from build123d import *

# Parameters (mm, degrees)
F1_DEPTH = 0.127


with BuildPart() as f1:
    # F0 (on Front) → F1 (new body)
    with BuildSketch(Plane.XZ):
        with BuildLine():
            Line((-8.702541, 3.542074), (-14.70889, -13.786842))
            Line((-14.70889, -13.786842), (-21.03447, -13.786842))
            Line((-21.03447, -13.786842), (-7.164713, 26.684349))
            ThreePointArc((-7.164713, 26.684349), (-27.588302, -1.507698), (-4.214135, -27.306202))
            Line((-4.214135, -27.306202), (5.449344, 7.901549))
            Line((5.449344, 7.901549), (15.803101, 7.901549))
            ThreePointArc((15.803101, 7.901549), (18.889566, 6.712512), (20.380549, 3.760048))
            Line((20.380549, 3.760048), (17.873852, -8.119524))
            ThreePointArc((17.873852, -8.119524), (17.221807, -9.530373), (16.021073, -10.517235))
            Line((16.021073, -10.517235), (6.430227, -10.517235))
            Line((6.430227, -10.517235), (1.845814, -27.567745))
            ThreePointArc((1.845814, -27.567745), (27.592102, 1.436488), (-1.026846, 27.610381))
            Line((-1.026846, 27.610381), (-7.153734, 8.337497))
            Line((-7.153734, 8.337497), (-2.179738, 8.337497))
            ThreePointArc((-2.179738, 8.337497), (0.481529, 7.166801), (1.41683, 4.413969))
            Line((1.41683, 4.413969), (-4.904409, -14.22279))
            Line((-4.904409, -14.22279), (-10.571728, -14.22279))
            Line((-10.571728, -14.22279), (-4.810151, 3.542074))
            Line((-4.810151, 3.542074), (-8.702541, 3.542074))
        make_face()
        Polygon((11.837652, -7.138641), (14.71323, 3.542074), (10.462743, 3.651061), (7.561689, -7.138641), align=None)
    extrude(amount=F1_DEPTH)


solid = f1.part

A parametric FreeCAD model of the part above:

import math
import FreeCAD as App
import Part
import Sketcher

V = App.Vector
Q = App.Units.Quantity


def add_polygon(sketch, points):
    """Adds a closed chain of lines whose ends are joined by coincident constraints."""
    first, n = sketch.GeometryCount, len(points)
    for a, b in zip(points, points[1:] + points[:1]):
        sketch.addGeometry(Part.LineSegment(App.Vector(*a, 0), App.Vector(*b, 0)), False)
    for i in range(n):
        sketch.addConstraint(Sketcher.Constraint("Coincident", first + i, 2, first + (i + 1) % n, 1))

doc = App.newDocument("Part")
body = doc.addObject("PartDesign::Body", "Body")
body.AllowCompound = True

# Sketch on XZ plane
sketch1 = body.newObject("Sketcher::SketchObject", "Sketch")
sketch1.AttachmentSupport = (doc.getObject("XZ_Plane"), [""])
sketch1.MapMode = "FlatFace"
sketch1.addGeometry(Part.LineSegment(V(-8.702541, 3.542074, 0), V(-14.70889, -13.786842, 0)), False)  # 0
sketch1.addGeometry(Part.LineSegment(V(-14.70889, -13.786842, 0), V(-21.03447, -13.786842, 0)), False)  # 1
sketch1.addGeometry(Part.LineSegment(V(-21.03447, -13.786842, 0), V(-7.164713, 26.684349, 0)), False)  # 2
sketch1.addGeometry(Part.ArcOfCircle(Part.Circle(V(0.000001, 0, 0), V(0, 0, 1), 27.62947), math.radians(105.029373), math.radians(261.22682)), False)  # 3
sketch1.addGeometry(Part.LineSegment(V(-4.214135, -27.306202, 0), V(5.449344, 7.901549, 0)), False)  # 4
sketch1.addGeometry(Part.LineSegment(V(5.449344, 7.901549, 0), V(15.803101, 7.901549, 0)), False)  # 5
sketch1.addGeometry(Part.ArcOfCircle(Part.Circle(V(15.803101, 3.301157, 0), V(0, 0, 1), 4.600392), math.radians(5.7248), math.radians(90.000004)), False)  # 6
sketch1.addGeometry(Part.LineSegment(V(20.380549, 3.760048, 0), V(17.873852, -8.119524, 0)), False)  # 7
sketch1.addGeometry(Part.ArcOfCircle(Part.Circle(V(14.4652, -7.400265, 0), V(0, 0, 1), 3.483711), math.radians(-63.473369), math.radians(-11.915181)), False)  # 8
sketch1.addGeometry(Part.LineSegment(V(16.021073, -10.517235, 0), V(6.430227, -10.517235, 0)), False)  # 9
sketch1.addGeometry(Part.LineSegment(V(6.430227, -10.517235, 0), V(1.845814, -27.567745, 0)), False)  # 10
sketch1.addGeometry(Part.ArcOfCircle(Part.Circle(V(0, 0, 0), V(0, 0, 1), 27.629469), math.radians(-86.169447), math.radians(92.129882)), False)  # 11
sketch1.addGeometry(Part.LineSegment(V(-1.026846, 27.610381, 0), V(-7.153734, 8.337497, 0)), False)  # 12
sketch1.addGeometry(Part.LineSegment(V(-7.153734, 8.337497, 0), V(-2.179738, 8.337497, 0)), False)  # 13
sketch1.addGeometry(Part.ArcOfCircle(Part.Circle(V(-2.179739, 4.727305, 0), V(0, 0, 1), 3.610192), math.radians(-4.979086), math.radians(89.999991)), False)  # 14
sketch1.addGeometry(Part.LineSegment(V(1.41683, 4.413969, 0), V(-4.904409, -14.22279, 0)), False)  # 15
sketch1.addGeometry(Part.LineSegment(V(-4.904409, -14.22279, 0), V(-10.571728, -14.22279, 0)), False)  # 16
sketch1.addGeometry(Part.LineSegment(V(-10.571728, -14.22279, 0), V(-4.810151, 3.542074, 0)), False)  # 17
sketch1.addGeometry(Part.LineSegment(V(-4.810151, 3.542074, 0), V(-8.702541, 3.542074, 0)), False)  # 18
add_polygon(sketch1, [(11.837652, -7.138641), (14.71323, 3.542074), (10.462743, 3.651061), (7.561689, -7.138641)])  # lines 19-22
sketch1.addConstraint(Sketcher.Constraint("Coincident", 0, 2, 1, 1))
sketch1.addConstraint(Sketcher.Constraint("Coincident", 1, 2, 2, 1))
sketch1.addConstraint(Sketcher.Constraint("Coincident", 2, 2, 3, 1))
sketch1.addConstraint(Sketcher.Constraint("Coincident", 3, 2, 4, 1))
sketch1.addConstraint(Sketcher.Constraint("Coincident", 4, 2, 5, 1))
sketch1.addConstraint(Sketcher.Constraint("Coincident", 5, 2, 6, 2))
sketch1.addConstraint(Sketcher.Constraint("Coincident", 6, 1, 7, 1))
sketch1.addConstraint(Sketcher.Constraint("Coincident", 7, 2, 8, 2))
sketch1.addConstraint(Sketcher.Constraint("Coincident", 8, 1, 9, 1))
sketch1.addConstraint(Sketcher.Constraint("Coincident", 9, 2, 10, 1))
sketch1.addConstraint(Sketcher.Constraint("Coincident", 10, 2, 11, 1))
sketch1.addConstraint(Sketcher.Constraint("Coincident", 11, 2, 12, 1))
sketch1.addConstraint(Sketcher.Constraint("Coincident", 12, 2, 13, 1))
sketch1.addConstraint(Sketcher.Constraint("Coincident", 13, 2, 14, 2))
sketch1.addConstraint(Sketcher.Constraint("Coincident", 14, 1, 15, 1))
sketch1.addConstraint(Sketcher.Constraint("Coincident", 15, 2, 16, 1))
sketch1.addConstraint(Sketcher.Constraint("Coincident", 16, 2, 17, 1))
sketch1.addConstraint(Sketcher.Constraint("Coincident", 17, 2, 18, 1))
sketch1.addConstraint(Sketcher.Constraint("Coincident", 18, 2, 0, 1))
sketch1.addConstraint(Sketcher.Constraint("Horizontal", 1))
sketch1.addConstraint(Sketcher.Constraint("Horizontal", 5))
sketch1.addConstraint(Sketcher.Constraint("Horizontal", 9))
sketch1.addConstraint(Sketcher.Constraint("Horizontal", 13))
sketch1.addConstraint(Sketcher.Constraint("Horizontal", 16))
sketch1.addConstraint(Sketcher.Constraint("Horizontal", 18))
sketch1.addConstraint(Sketcher.Constraint("Horizontal", 22))
sketch1.addConstraint(Sketcher.Constraint("Coincident", 3, 3, -1, 1))
sketch1.addConstraint(Sketcher.Constraint("Coincident", 11, 3, -1, 1))
sketch1.addConstraint(Sketcher.Constraint("Radius", 3, Q("27.62947 mm")))
sketch1.addConstraint(Sketcher.Constraint("Radius", 8, Q("3.483711 mm")))
sketch1.addConstraint(Sketcher.Constraint("Radius", 11, Q("27.629469 mm")))
sketch1.addConstraint(Sketcher.Constraint("Radius", 14, Q("3.610192 mm")))
sketch1.addConstraint(Sketcher.Constraint("Radius", 6, Q("4.600392 mm")))
sketch1.addConstraint(Sketcher.Constraint("DistanceY", 8, 3, 21, 2, Q("0.0103002 in")))
sketch1.addConstraint(Sketcher.Constraint("DistanceX", 1, 2, 1, 1, Q("6.32558 mm")))
sketch1.addConstraint(Sketcher.Constraint("DistanceX", 16, 2, 16, 1, Q("5.667319 mm")))
sketch1.addConstraint(Sketcher.Constraint("DistanceX", 18, 2, 18, 1, Q("3.89239 mm")))
sketch1.addConstraint(Sketcher.Constraint("DistanceX", -1, 1, 6, 3, Q("15.803101 mm")))
sketch1.addConstraint(Sketcher.Constraint("DistanceX", -1, 1, 8, 3, Q("14.4652 mm")))
sketch1.addConstraint(Sketcher.Constraint("DistanceY", 3, 2, -1, 1, Q("27.306202 mm")))
sketch1.addConstraint(Sketcher.Constraint("DistanceX", -1, 1, 5, 2, Q("15.803101 mm")))
sketch1.addConstraint(Sketcher.Constraint("DistanceY", 0, 2, 6, 3, Q("17.087999 mm")))
sketch1.addConstraint(Sketcher.Constraint("DistanceY", 6, 1, 5, 2, Q("4.141501 mm")))
sketch1.addConstraint(Sketcher.Constraint("DistanceX", 4, 2, 20, 2, Q("5.013399 mm")))
sketch1.addConstraint(Sketcher.Constraint("DistanceX", 22, 2, 7, 2, Q("6.0362 mm")))
sketch1.addConstraint(Sketcher.Constraint("Distance", 2, Q("42.781859 mm")))
sketch1.addConstraint(Sketcher.Constraint("Distance", 4, Q("36.509842 mm")))
sketch1.addConstraint(Sketcher.Constraint("Distance", 7, Q("12.14116 mm")))
sketch1.addConstraint(Sketcher.Constraint("Distance", 19, Q("11.061041 mm")))
sketch1.addConstraint(Sketcher.Constraint("DistanceX", 5, 1, 5, 2, Q("10.353757 mm")))
sketch1.addConstraint(Sketcher.Constraint("DistanceX", 9, 2, 9, 1, Q("9.590846 mm")))
sketch1.addConstraint(Sketcher.Constraint("DistanceX", 13, 1, 13, 2, Q("4.973996 mm")))
sketch1.addConstraint(Sketcher.Constraint("DistanceX", 22, 1, 22, 2, Q("4.275963 mm")))
sketch1.addConstraint(Sketcher.Constraint("DistanceX", 14, 3, -1, 1, Q("2.179739 mm")))
sketch1.addConstraint(Sketcher.Constraint("DistanceX", 0, 2, -1, 1, Q("14.70889 mm")))
sketch1.addConstraint(Sketcher.Constraint("DistanceX", -1, 1, 7, 2, Q("17.873852 mm")))
sketch1.addConstraint(Sketcher.Constraint("DistanceY", -1, 1, 11, 2, Q("27.610381 mm")))
sketch1.addConstraint(Sketcher.Constraint("DistanceX", 13, 2, -1, 1, Q("2.179738 mm")))
sketch1.addConstraint(Sketcher.Constraint("DistanceX", -1, 1, 14, 1, Q("1.41683 mm")))
sketch1.addConstraint(Sketcher.Constraint("DistanceY", -1, 1, 14, 1, Q("4.413969 mm")))
sketch1.addConstraint(Sketcher.Constraint("DistanceX", 15, 2, -1, 1, Q("4.904409 mm")))
sketch1.addConstraint(Sketcher.Constraint("DistanceY", 15, 2, -1, 1, Q("14.22279 mm")))
sketch1.addConstraint(Sketcher.Constraint("DistanceX", 17, 2, -1, 1, Q("4.810151 mm")))
sketch1.addConstraint(Sketcher.Constraint("DistanceX", -1, 1, 19, 2, Q("14.71323 mm")))
sketch1.addConstraint(Sketcher.Constraint("DistanceY", -1, 1, 20, 2, Q("3.651061 mm")))
sketch1.addConstraint(Sketcher.Constraint("DistanceX", 8, 1, 7, 2, Q("1.852779 mm")))
sketch1.addConstraint(Sketcher.Constraint("DistanceX", 3, 2, 10, 2, Q("6.059949 mm")))
sketch1.addConstraint(Sketcher.Constraint("DistanceY", 17, 2, 14, 3, Q("1.185231 mm")))
pad1 = body.newObject("PartDesign::Pad", "Pad")
pad1.Profile = sketch1
pad1.Length = Q("0.005 in")

doc.recompute()
